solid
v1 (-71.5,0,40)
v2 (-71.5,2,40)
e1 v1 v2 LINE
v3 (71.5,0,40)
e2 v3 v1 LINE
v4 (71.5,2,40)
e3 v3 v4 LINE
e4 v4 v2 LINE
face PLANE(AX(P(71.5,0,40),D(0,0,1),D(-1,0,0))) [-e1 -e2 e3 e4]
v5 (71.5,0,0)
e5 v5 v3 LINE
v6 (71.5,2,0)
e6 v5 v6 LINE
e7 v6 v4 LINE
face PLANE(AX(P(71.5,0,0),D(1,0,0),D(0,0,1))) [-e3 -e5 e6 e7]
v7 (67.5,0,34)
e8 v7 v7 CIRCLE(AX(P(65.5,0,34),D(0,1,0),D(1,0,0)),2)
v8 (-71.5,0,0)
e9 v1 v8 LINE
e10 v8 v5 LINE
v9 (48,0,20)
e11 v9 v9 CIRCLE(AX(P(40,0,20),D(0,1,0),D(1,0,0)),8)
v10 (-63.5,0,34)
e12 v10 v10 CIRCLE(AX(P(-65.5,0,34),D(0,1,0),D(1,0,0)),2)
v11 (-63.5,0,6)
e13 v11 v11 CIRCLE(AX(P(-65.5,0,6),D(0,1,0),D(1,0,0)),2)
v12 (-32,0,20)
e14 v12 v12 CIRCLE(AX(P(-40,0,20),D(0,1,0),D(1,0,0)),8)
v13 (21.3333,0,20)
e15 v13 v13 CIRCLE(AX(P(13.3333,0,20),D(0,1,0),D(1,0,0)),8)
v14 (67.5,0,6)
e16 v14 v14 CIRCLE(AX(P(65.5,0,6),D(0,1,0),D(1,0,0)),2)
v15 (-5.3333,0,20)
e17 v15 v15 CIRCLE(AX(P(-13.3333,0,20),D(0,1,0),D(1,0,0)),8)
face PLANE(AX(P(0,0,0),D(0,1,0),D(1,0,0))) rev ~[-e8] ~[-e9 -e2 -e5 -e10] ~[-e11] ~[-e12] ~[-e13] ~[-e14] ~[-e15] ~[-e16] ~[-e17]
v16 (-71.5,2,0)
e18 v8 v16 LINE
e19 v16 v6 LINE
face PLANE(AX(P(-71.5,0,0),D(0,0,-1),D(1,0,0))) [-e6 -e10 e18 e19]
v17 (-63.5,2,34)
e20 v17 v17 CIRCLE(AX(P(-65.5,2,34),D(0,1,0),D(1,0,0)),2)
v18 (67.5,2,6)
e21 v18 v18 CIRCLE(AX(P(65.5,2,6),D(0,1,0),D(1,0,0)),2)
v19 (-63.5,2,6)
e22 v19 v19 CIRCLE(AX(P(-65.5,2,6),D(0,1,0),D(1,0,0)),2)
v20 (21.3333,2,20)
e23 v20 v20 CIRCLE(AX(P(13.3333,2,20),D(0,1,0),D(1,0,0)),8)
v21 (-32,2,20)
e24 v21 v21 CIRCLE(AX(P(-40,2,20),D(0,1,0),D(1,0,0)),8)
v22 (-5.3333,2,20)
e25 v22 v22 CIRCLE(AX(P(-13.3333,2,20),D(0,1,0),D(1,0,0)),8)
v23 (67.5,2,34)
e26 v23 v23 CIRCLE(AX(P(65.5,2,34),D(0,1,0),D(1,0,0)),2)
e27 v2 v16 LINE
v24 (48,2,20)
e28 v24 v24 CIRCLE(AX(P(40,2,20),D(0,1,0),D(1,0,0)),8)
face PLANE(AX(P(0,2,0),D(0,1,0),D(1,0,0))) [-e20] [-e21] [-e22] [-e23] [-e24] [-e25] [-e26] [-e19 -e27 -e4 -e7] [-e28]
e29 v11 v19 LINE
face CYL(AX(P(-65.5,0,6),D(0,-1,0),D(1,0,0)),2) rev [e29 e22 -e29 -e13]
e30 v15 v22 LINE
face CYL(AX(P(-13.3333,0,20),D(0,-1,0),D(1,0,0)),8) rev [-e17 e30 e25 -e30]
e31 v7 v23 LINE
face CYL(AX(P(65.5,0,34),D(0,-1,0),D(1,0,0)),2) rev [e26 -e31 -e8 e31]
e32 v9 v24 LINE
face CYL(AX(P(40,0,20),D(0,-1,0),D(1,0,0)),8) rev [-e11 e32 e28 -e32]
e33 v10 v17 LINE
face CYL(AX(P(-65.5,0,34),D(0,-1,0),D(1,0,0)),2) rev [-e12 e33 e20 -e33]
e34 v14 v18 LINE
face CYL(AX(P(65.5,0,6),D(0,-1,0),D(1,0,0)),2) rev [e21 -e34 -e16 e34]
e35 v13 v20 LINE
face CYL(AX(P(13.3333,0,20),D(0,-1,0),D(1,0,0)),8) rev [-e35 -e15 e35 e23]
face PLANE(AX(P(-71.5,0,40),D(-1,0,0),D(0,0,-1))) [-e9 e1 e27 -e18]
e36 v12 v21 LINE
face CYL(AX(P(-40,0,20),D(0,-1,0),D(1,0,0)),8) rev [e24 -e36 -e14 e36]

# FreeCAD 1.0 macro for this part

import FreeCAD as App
import Part
import Sketcher
Q = App.Units.Quantity

doc = App.newDocument("Part")
body = doc.addObject("PartDesign::Body", "Body")

sketch1 = body.newObject("Sketcher::SketchObject", "Sketch")
sketch1.AttachmentSupport = (doc.getObject("XZ_Plane"), [""])
sketch1.MapMode = "FlatFace"
sketch1.addGeometry(Part.LineSegment(App.Vector(71.5, 0, 0), App.Vector(-71.5, 0, 0)), False)
sketch1.addGeometry(Part.LineSegment(App.Vector(-71.5, 0, 0), App.Vector(-71.5, 40, 0)), False)
sketch1.addGeometry(Part.LineSegment(App.Vector(-71.5, 40, 0), App.Vector(71.5, 40, 0)), False)
sketch1.addGeometry(Part.LineSegment(App.Vector(71.5, 40, 0), App.Vector(71.5, 0, 0)), False)
sketch1.addGeometry(Part.Circle(App.Vector(-65.5, 34, 0), App.Vector(0, 0, 1), 2), False)
sketch1.addGeometry(Part.Circle(App.Vector(65.5, 34, 0), App.Vector(0, 0, 1), 2), False)
sketch1.addGeometry(Part.Circle(App.Vector(-40, 20, 0), App.Vector(0, 0, 1), 8), False)
sketch1.addGeometry(Part.Circle(App.Vector(-13.3, 20, 0), App.Vector(0, 0, 1), 8), False)
sketch1.addGeometry(Part.Circle(App.Vector(-65.5, 6, 0), App.Vector(0, 0, 1), 2), False)
sketch1.addGeometry(Part.Circle(App.Vector(13.3, 20, 0), App.Vector(0, 0, 1), 8), False)
sketch1.addGeometry(Part.Circle(App.Vector(40, 20, 0), App.Vector(0, 0, 1), 8), False)
sketch1.addGeometry(Part.Circle(App.Vector(65.5, 6, 0), App.Vector(0, 0, 1), 2), False)
sketch1.addConstraint(Sketcher.Constraint("Coincident", 0, 2, 1, 1))
sketch1.addConstraint(Sketcher.Constraint("Coincident", 1, 2, 2, 1))
sketch1.addConstraint(Sketcher.Constraint("Coincident", 2, 2, 3, 1))
sketch1.addConstraint(Sketcher.Constraint("Coincident", 3, 2, 0, 1))
sketch1.addConstraint(Sketcher.Constraint("Horizontal", 0))
sketch1.addConstraint(Sketcher.Constraint("Vertical", 1))
sketch1.addConstraint(Sketcher.Constraint("Horizontal", 2))
sketch1.addConstraint(Sketcher.Constraint("Vertical", 3))
sketch1.addConstraint(Sketcher.Constraint("Equal", 4, 5))
sketch1.addConstraint(Sketcher.Constraint("Equal", 6, 7))
sketch1.addConstraint(Sketcher.Constraint("Equal", 5, 8))
sketch1.addConstraint(Sketcher.Constraint("Equal", 7, 9))
sketch1.addConstraint(Sketcher.Constraint("Equal", 9, 10))
sketch1.addConstraint(Sketcher.Constraint("Equal", 8, 11))
sketch1.addConstraint(Sketcher.Constraint("Symmetric", 0, 2, 3, 2, -1, 1))
sketch1.addConstraint(Sketcher.Constraint("Symmetric", 4, 3, 5, 3, -2))
sketch1.addConstraint(Sketcher.Constraint("Symmetric", 7, 3, 9, 3, -2))
sketch1.addConstraint(Sketcher.Constraint("Symmetric", 6, 3, 10, 3, -2))
sketch1.addConstraint(Sketcher.Constraint("Symmetric", 8, 3, 11, 3, -2))
sketch1.addConstraint(Sketcher.Constraint("Horizontal", 6, 3, 7, 3))
sketch1.addConstraint(Sketcher.Constraint("Vertical", 4, 3, 8, 3))
sketch1.addConstraint(Sketcher.Constraint("Diameter", 4, Q("4 mm")))
sketch1.addConstraint(Sketcher.Constraint("Diameter", 6, Q("16 mm")))
sketch1.addConstraint(Sketcher.Constraint("DistanceX", 0, 2, 0, 1, Q("143 mm")))
sketch1.addConstraint(Sketcher.Constraint("DistanceY", 1, 1, 1, 2, Q("40 mm")))
sketch1.addConstraint(Sketcher.Constraint("DistanceX", 6, 3, -1, 1, Q("40 mm")))
sketch1.addConstraint(Sketcher.Constraint("DistanceY", -1, 1, 8, 3, Q("6 mm")))
sketch1.addConstraint(Sketcher.Constraint("DistanceX", 0, 2, 8, 3, Q("6 mm")))
sketch1.addConstraint(Sketcher.Constraint("DistanceY", 4, 3, 1, 2, Q("6 mm")))
sketch1.addConstraint(Sketcher.Constraint("DistanceY", -1, 1, 6, 3, Q("20 mm")))
sketch1.addConstraint(Sketcher.Constraint("DistanceX", 7, 3, -1, 1, Q("13.3333 mm")))
pad1 = body.newObject("PartDesign::Pad", "Pad")
pad1.Profile = sketch1
pad1.Length = 2
pad1.Reversed = True

doc.recompute()
